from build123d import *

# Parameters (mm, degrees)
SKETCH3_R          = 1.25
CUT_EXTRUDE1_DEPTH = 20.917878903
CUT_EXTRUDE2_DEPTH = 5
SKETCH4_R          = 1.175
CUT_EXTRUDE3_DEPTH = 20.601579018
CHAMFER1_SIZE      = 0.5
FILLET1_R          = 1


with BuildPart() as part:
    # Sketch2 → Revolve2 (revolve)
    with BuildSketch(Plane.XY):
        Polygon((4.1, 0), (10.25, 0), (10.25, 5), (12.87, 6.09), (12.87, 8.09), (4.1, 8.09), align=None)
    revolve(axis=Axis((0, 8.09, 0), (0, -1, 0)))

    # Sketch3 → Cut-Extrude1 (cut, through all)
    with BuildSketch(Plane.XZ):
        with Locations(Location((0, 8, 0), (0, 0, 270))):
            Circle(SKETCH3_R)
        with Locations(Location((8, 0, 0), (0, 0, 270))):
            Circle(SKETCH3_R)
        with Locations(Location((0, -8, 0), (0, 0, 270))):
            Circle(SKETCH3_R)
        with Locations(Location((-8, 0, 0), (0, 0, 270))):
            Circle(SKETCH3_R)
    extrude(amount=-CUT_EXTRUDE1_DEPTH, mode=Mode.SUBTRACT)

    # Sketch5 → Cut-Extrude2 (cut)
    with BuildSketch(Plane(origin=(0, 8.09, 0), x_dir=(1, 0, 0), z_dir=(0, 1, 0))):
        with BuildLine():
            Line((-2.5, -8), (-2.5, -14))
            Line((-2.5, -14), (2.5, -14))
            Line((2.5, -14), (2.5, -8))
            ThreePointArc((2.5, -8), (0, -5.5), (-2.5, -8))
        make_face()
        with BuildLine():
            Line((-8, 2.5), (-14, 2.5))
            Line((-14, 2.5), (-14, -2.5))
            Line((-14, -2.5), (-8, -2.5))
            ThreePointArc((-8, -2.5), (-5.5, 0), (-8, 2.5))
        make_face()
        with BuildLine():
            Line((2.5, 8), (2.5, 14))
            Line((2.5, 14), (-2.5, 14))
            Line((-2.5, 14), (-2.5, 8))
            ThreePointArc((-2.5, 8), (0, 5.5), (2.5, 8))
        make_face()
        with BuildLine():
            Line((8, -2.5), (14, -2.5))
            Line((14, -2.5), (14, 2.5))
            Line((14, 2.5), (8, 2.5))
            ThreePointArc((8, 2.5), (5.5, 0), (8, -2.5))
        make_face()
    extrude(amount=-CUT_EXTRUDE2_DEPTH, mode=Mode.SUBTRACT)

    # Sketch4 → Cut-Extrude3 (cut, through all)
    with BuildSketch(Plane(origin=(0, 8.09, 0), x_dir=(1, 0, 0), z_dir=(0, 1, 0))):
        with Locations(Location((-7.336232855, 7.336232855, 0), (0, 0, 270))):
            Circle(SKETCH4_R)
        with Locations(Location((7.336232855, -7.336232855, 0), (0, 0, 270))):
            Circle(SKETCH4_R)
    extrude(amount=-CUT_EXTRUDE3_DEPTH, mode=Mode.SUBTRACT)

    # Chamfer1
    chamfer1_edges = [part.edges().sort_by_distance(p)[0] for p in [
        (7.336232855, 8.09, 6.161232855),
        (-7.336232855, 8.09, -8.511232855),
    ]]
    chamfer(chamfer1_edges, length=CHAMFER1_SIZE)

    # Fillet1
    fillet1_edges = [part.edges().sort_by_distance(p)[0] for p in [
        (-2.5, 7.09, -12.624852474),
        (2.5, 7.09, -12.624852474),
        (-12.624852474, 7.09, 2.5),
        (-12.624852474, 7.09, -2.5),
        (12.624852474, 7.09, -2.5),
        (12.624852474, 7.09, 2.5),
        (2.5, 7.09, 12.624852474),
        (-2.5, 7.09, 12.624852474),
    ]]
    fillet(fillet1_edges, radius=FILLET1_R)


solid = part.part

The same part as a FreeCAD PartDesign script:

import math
import FreeCAD as App
import Part
import Sketcher
from FreeCAD import Vector


def edges_at(feature, points):
    """Names of the edges that pass closest to the given points."""
    edges = feature.Shape.Edges
    near = lambda p: min(range(len(edges)), key=lambda i: edges[i].distToShape(Part.Vertex(*p))[0])
    return sorted({f"Edge{near(p) + 1}" for p in points})

doc = App.newDocument("Part")
body = doc.addObject("PartDesign::Body", "Body")

# Sketch on XY plane
sketch1 = doc.addObject("Sketcher::SketchObject", "Sketch")
body.addObject(sketch1)
sketch1.AttachmentSupport = (doc.XY_Plane, [""])
sketch1.MapMode = "FlatFace"
sketch1.addGeometry(Part.LineSegment(Vector(4.1, 0, 0), Vector(10.25, 0, 0)), False)
sketch1.addGeometry(Part.LineSegment(Vector(10.25, 0, 0), Vector(10.25, 5, 0)), False)
sketch1.addGeometry(Part.LineSegment(Vector(10.25, 5, 0), Vector(12.87, 6.09, 0)), False)
sketch1.addGeometry(Part.LineSegment(Vector(12.87, 6.09, 0), Vector(12.87, 8.09, 0)), False)
sketch1.addGeometry(Part.LineSegment(Vector(12.87, 8.09, 0), Vector(4.1, 8.09, 0)), False)
sketch1.addGeometry(Part.LineSegment(Vector(4.1, 8.09, 0), Vector(4.1, 0, 0)), False)
sketch1.addConstraint(Sketcher.Constraint("Coincident", 0, 2, 1, 1))
sketch1.addConstraint(Sketcher.Constraint("Coincident", 1, 2, 2, 1))
sketch1.addConstraint(Sketcher.Constraint("Coincident", 2, 2, 3, 1))
sketch1.addConstraint(Sketcher.Constraint("Coincident", 3, 2, 4, 1))
sketch1.addConstraint(Sketcher.Constraint("Coincident", 4, 2, 5, 1))
sketch1.addConstraint(Sketcher.Constraint("Coincident", 5, 2, 0, 1))
sketch1.addConstraint(Sketcher.Constraint("Horizontal", 0))
sketch1.addConstraint(Sketcher.Constraint("Vertical", 1))
sketch1.addConstraint(Sketcher.Constraint("Vertical", 3))
sketch1.addConstraint(Sketcher.Constraint("Horizontal", 4))
sketch1.addConstraint(Sketcher.Constraint("Vertical", 5))
sketch1.addConstraint(Sketcher.Constraint("PointOnObject", 0, 2, -1))
sketch1.addConstraint(Sketcher.Constraint("DistanceY", 1, 1, 1, 2, 5.0))
sketch1.addConstraint(Sketcher.Constraint("DistanceY", 3, 1, 3, 2, 2.0))
sketch1.addConstraint(Sketcher.Constraint("DistanceX", 0, 1, 0, 2, 6.15))
sketch1.addConstraint(Sketcher.Constraint("DistanceX", 4, 2, 4, 1, 8.77))
sketch1.addConstraint(Sketcher.Constraint("DistanceY", 5, 2, 5, 1, 8.09))
sketch1.addConstraint(Sketcher.Constraint("DistanceX", -1, 1, 4, 2, 4.1))
revolution = doc.addObject("PartDesign::Revolution", "Revolution")
body.addObject(revolution)
revolution.Profile = sketch1
revolution.ReferenceAxis = (sketch1, ["V_Axis"])
revolution.Angle = 360

# Sketch on XZ plane
sketch2 = doc.addObject("Sketcher::SketchObject", "Sketch001")
body.addObject(sketch2)
sketch2.AttachmentSupport = (doc.XZ_Plane, [""])
sketch2.MapMode = "FlatFace"
sketch2.addGeometry(Part.Circle(Vector(0, 8, 0), Vector(0, 0, 1), 1.25), False)
sketch2.addGeometry(Part.Circle(Vector(8, 0, 0), Vector(0, 0, 1), 1.25), False)
sketch2.addGeometry(Part.Circle(Vector(0, -8, 0), Vector(0, 0, 1), 1.25), False)
sketch2.addGeometry(Part.Circle(Vector(-8, 0, 0), Vector(0, 0, 1), 1.25), False)
sketch2.addConstraint(Sketcher.Constraint("Equal", 0, 1))
sketch2.addConstraint(Sketcher.Constraint("Equal", 1, 2))
sketch2.addConstraint(Sketcher.Constraint("Equal", 2, 3))
sketch2.addConstraint(Sketcher.Constraint("Symmetric", 0, 3, 2, 3, -1, 1))
sketch2.addConstraint(Sketcher.Constraint("Symmetric", 1, 3, 3, 3, -1, 1))
sketch2.addConstraint(Sketcher.Constraint("PointOnObject", 0, 3, -2))
sketch2.addConstraint(Sketcher.Constraint("PointOnObject", 1, 3, -1))
sketch2.addConstraint(Sketcher.Constraint("Diameter", 0, 2.5))
sketch2.addConstraint(Sketcher.Constraint("DistanceY", -1, 1, 0, 3, 8.0))
sketch2.addConstraint(Sketcher.Constraint("DistanceX", -1, 1, 1, 3, 8.0))
pocket1 = doc.addObject("PartDesign::Pocket", "Pocket")
body.addObject(pocket1)
pocket1.Profile = sketch2
pocket1.Type = "ThroughAll"

# Sketch on XZ plane
sketch3 = doc.addObject("Sketcher::SketchObject", "Sketch002")
body.addObject(sketch3)
sketch3.AttachmentSupport = (doc.XZ_Plane, [""])
sketch3.MapMode = "FlatFace"
sketch3.AttachmentOffset = App.Placement(Vector(0, 0, -8.09), App.Rotation())
sketch3.addGeometry(Part.LineSegment(Vector(-2.5, 8, 0), Vector(-2.5, 14, 0)), False)
sketch3.addGeometry(Part.LineSegment(Vector(-2.5, 14, 0), Vector(2.5, 14, 0)), False)
sketch3.addGeometry(Part.LineSegment(Vector(2.5, 14, 0), Vector(2.5, 8, 0)), False)
sketch3.addGeometry(Part.ArcOfCircle(Part.Circle(Vector(0, 8, 0), Vector(0, 0, 1), 2.5), math.radians(180), math.radians(360)), False)
sketch3.addGeometry(Part.LineSegment(Vector(-8, -2.5, 0), Vector(-14, -2.5, 0)), False)
sketch3.addGeometry(Part.LineSegment(Vector(-14, -2.5, 0), Vector(-14, 2.5, 0)), False)
sketch3.addGeometry(Part.LineSegment(Vector(-14, 2.5, 0), Vector(-8, 2.5, 0)), False)
sketch3.addGeometry(Part.ArcOfCircle(Part.Circle(Vector(-8, 0, 0), Vector(0, 0, 1), 2.5), math.radians(-90), math.radians(90)), False)
sketch3.addGeometry(Part.LineSegment(Vector(2.5, -8, 0), Vector(2.5, -14, 0)), False)
sketch3.addGeometry(Part.LineSegment(Vector(2.5, -14, 0), Vector(-2.5, -14, 0)), False)
sketch3.addGeometry(Part.LineSegment(Vector(-2.5, -14, 0), Vector(-2.5, -8, 0)), False)
sketch3.addGeometry(Part.ArcOfCircle(Part.Circle(Vector(0, -8, 0), Vector(0, 0, 1), 2.5), math.radians(0), math.radians(180)), False)
sketch3.addGeometry(Part.LineSegment(Vector(8, 2.5, 0), Vector(14, 2.5, 0)), False)
sketch3.addGeometry(Part.LineSegment(Vector(14, 2.5, 0), Vector(14, -2.5, 0)), False)
sketch3.addGeometry(Part.LineSegment(Vector(14, -2.5, 0), Vector(8, -2.5, 0)), False)
sketch3.addGeometry(Part.ArcOfCircle(Part.Circle(Vector(8, 0, 0), Vector(0, 0, 1), 2.5), math.radians(90), math.radians(270)), False)
sketch3.addConstraint(Sketcher.Constraint("Coincident", 0, 2, 1, 1))
sketch3.addConstraint(Sketcher.Constraint("Coincident", 1, 2, 2, 1))
sketch3.addConstraint(Sketcher.Constraint("Tangent", 2, 2, 3, 2))
sketch3.addConstraint(Sketcher.Constraint("Tangent", 3, 1, 0, 1))
sketch3.addConstraint(Sketcher.Constraint("Coincident", 4, 2, 5, 1))
sketch3.addConstraint(Sketcher.Constraint("Coincident", 5, 2, 6, 1))
sketch3.addConstraint(Sketcher.Constraint("Tangent", 6, 2, 7, 2))
sketch3.addConstraint(Sketcher.Constraint("Tangent", 7, 1, 4, 1))
sketch3.addConstraint(Sketcher.Constraint("Coincident", 8, 2, 9, 1))
sketch3.addConstraint(Sketcher.Constraint("Coincident", 9, 2, 10, 1))
sketch3.addConstraint(Sketcher.Constraint("Tangent", 10, 2, 11, 2))
sketch3.addConstraint(Sketcher.Constraint("Tangent", 11, 1, 8, 1))
sketch3.addConstraint(Sketcher.Constraint("Coincident", 12, 2, 13, 1))
sketch3.addConstraint(Sketcher.Constraint("Coincident", 13, 2, 14, 1))
sketch3.addConstraint(Sketcher.Constraint("Tangent", 14, 2, 15, 2))
sketch3.addConstraint(Sketcher.Constraint("Tangent", 15, 1, 12, 1))
sketch3.addConstraint(Sketcher.Constraint("Vertical", 0))
sketch3.addConstraint(Sketcher.Constraint("Horizontal", 1))
sketch3.addConstraint(Sketcher.Constraint("Vertical", 2))
sketch3.addConstraint(Sketcher.Constraint("Horizontal", 4))
sketch3.addConstraint(Sketcher.Constraint("Vertical", 5))
sketch3.addConstraint(Sketcher.Constraint("Horizontal", 6))
sketch3.addConstraint(Sketcher.Constraint("Vertical", 8))
sketch3.addConstraint(Sketcher.Constraint("Horizontal", 9))
sketch3.addConstraint(Sketcher.Constraint("Vertical", 10))
sketch3.addConstraint(Sketcher.Constraint("Horizontal", 12))
sketch3.addConstraint(Sketcher.Constraint("Vertical", 13))
sketch3.addConstraint(Sketcher.Constraint("Horizontal", 14))
sketch3.addConstraint(Sketcher.Constraint("Equal", 3, 7))
sketch3.addConstraint(Sketcher.Constraint("Equal", 7, 11))
sketch3.addConstraint(Sketcher.Constraint("Equal", 11, 15))
sketch3.addConstraint(Sketcher.Constraint("Symmetric", 3, 3, 11, 3, -1, 1))
sketch3.addConstraint(Sketcher.Constraint("Symmetric", 7, 3, 15, 3, -1, 1))
sketch3.addConstraint(Sketcher.Constraint("Symmetric", 5, 2, 12, 2, -2))
sketch3.addConstraint(Sketcher.Constraint("Symmetric", 1, 2, 8, 2, -1))
sketch3.addConstraint(Sketcher.Constraint("Equal", 14, 0))
sketch3.addConstraint(Sketcher.Constraint("Radius", 3, 2.5))
sketch3.addConstraint(Sketcher.Constraint("DistanceX", 4, 2, 4, 1, 6.0))
sketch3.addConstraint(Sketcher.Constraint("DistanceY", -1, 1, 3, 3, 8.0))
sketch3.addConstraint(Sketcher.Constraint("DistanceX", 7, 3, -1, 1, 8.0))
pocket2 = doc.addObject("PartDesign::Pocket", "Pocket001")
body.addObject(pocket2)
pocket2.Profile = sketch3
pocket2.Length = 5
pocket2.Reversed = True

# Sketch on XZ plane
sketch4 = doc.addObject("Sketcher::SketchObject", "Sketch003")
body.addObject(sketch4)
sketch4.AttachmentSupport = (doc.XZ_Plane, [""])
sketch4.MapMode = "FlatFace"
sketch4.AttachmentOffset = App.Placement(Vector(0, 0, -8.09), App.Rotation())
sketch4.addGeometry(Part.Circle(Vector(-7.336233, -7.336233, 0), Vector(0, 0, 1), 1.175), False)
sketch4.addGeometry(Part.Circle(Vector(7.336233, 7.336233, 0), Vector(0, 0, 1), 1.175), False)
sketch4.addConstraint(Sketcher.Constraint("Equal", 0, 1))
sketch4.addConstraint(Sketcher.Constraint("Symmetric", 0, 3, 1, 3, -1, 1))
sketch4.addConstraint(Sketcher.Constraint("Diameter", 0, 2.35))
sketch4.addConstraint(Sketcher.Constraint("DistanceX", 0, 3, -1, 1, 7.336233))
sketch4.addConstraint(Sketcher.Constraint("DistanceY", 0, 3, -1, 1, 7.336233))
pocket3 = doc.addObject("PartDesign::Pocket", "Pocket002")
body.addObject(pocket3)
pocket3.Profile = sketch4
pocket3.Type = "ThroughAll"
pocket3.Reversed = True
doc.recompute()

chamfer = doc.addObject("PartDesign::Chamfer", "Chamfer")
body.addObject(chamfer)
chamfer.Base = (pocket3, edges_at(pocket3, [(7.336, 8.09, 6.161), (-7.336, 8.09, -8.511)]))
chamfer.Size = 0.5
doc.recompute()

fillet = doc.addObject("PartDesign::Fillet", "Fillet")
body.addObject(fillet)
fillet.Base = (chamfer, edges_at(chamfer, [
    (-2.5, 7.09, -12.625),
    (2.5, 7.09, -12.625),
    (-12.625, 7.09, 2.5),
    (-12.625, 7.09, -2.5),
    (12.625, 7.09, -2.5),
    (12.625, 7.09, 2.5),
    (2.5, 7.09, 12.625),
    (-2.5, 7.09, 12.625),
]))
fillet.Radius = 1

doc.recompute()
